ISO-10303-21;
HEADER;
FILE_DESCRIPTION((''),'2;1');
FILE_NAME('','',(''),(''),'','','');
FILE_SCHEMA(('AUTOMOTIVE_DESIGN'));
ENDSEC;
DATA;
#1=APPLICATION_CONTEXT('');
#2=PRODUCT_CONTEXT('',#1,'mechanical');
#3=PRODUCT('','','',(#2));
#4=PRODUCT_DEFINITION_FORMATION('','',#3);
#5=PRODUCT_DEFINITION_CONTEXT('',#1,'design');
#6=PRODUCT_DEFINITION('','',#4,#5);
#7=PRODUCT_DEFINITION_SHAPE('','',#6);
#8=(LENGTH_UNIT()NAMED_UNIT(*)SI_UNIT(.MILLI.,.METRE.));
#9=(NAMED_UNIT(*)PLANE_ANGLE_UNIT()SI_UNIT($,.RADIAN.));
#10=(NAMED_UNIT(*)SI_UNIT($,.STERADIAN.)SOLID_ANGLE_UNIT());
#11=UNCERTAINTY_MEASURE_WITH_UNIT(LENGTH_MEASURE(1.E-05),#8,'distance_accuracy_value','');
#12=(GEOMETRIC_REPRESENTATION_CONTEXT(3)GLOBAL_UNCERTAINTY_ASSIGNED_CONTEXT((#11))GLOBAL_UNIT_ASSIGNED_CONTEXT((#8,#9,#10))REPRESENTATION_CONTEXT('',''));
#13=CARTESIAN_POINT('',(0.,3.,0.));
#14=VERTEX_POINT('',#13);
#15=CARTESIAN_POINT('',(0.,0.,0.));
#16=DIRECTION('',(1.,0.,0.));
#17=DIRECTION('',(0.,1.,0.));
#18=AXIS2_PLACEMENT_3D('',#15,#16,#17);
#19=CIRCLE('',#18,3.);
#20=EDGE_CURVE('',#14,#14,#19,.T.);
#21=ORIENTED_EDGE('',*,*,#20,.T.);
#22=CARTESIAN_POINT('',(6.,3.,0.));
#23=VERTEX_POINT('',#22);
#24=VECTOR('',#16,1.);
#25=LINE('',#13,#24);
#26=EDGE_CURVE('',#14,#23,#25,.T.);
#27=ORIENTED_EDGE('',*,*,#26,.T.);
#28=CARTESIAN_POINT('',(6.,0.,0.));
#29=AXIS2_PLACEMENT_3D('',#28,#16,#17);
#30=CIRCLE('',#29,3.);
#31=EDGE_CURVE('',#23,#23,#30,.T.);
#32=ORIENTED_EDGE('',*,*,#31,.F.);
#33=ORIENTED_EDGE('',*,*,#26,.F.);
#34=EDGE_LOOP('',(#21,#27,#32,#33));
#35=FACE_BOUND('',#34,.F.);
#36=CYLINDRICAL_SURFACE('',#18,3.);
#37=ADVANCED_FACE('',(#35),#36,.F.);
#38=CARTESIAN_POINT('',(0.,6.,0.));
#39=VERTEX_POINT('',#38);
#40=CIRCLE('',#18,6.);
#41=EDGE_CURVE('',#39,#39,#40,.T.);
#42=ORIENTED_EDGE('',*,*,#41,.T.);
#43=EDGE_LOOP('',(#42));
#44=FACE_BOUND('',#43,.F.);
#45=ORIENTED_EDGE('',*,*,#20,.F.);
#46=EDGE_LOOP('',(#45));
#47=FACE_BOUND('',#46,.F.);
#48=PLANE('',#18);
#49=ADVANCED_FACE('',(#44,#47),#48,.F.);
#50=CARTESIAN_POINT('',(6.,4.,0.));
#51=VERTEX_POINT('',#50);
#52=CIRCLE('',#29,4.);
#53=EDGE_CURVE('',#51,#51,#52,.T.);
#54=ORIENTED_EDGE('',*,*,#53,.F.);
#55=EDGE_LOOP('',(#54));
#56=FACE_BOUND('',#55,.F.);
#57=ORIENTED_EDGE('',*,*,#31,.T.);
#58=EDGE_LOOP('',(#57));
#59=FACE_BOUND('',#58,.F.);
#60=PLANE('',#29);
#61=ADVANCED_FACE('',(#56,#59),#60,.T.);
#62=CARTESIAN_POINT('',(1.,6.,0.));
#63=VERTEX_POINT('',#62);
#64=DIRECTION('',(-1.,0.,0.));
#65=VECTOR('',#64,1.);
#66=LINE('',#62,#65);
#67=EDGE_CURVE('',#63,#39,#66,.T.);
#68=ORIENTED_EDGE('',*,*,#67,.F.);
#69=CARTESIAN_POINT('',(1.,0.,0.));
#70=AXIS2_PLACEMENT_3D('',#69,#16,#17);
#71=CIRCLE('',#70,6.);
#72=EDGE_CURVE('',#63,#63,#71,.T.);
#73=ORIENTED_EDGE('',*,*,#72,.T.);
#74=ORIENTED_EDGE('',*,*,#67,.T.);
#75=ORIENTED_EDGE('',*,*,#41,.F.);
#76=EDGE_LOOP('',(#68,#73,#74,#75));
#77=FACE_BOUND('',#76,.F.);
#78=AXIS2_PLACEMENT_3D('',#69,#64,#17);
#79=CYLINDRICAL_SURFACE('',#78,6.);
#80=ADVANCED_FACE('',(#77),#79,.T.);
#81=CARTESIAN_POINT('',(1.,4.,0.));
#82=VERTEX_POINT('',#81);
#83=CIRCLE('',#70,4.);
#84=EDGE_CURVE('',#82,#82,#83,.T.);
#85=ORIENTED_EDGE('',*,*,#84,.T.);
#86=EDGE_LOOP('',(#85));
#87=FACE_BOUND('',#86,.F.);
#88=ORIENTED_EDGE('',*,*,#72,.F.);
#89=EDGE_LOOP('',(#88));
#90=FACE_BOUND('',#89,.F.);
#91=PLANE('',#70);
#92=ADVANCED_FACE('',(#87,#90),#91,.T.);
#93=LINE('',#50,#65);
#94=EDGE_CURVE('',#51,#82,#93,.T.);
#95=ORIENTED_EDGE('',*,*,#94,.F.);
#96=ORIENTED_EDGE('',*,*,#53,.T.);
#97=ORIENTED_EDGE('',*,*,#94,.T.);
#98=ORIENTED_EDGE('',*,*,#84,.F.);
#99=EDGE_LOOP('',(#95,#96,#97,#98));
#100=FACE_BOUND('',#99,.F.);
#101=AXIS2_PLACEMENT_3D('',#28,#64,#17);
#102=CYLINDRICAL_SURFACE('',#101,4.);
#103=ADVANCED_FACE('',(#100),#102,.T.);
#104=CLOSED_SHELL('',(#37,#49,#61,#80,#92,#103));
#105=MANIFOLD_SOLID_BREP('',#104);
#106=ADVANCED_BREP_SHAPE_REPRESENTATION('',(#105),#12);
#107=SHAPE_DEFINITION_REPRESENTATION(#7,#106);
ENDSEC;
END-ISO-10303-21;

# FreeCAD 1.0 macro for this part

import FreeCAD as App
import Part
import Sketcher
from FreeCAD import Vector


def add_polygon(sketch, points):
    """Adds a closed chain of lines whose ends are joined by coincident constraints."""
    first, n = sketch.GeometryCount, len(points)
    for a, b in zip(points, points[1:] + points[:1]):
        sketch.addGeometry(Part.LineSegment(App.Vector(*a, 0), App.Vector(*b, 0)), False)
    for i in range(n):
        sketch.addConstraint(Sketcher.Constraint("Coincident", first + i, 2, first + (i + 1) % n, 1))

doc = App.newDocument("Part")
body = doc.addObject("PartDesign::Body", "Body")

sketch1 = body.newObject("Sketcher::SketchObject", "Sketch")
sketch1.AttachmentSupport = (doc.getObject("XY_Plane"), [""])
sketch1.MapMode = "FlatFace"
add_polygon(sketch1, [(0, 6), (0, 3), (6, 3), (6, 4), (1, 4), (1, 6)])
sketch1.addConstraint(Sketcher.Constraint("Vertical", 0))
sketch1.addConstraint(Sketcher.Constraint("Horizontal", 1))
sketch1.addConstraint(Sketcher.Constraint("Vertical", 2))
sketch1.addConstraint(Sketcher.Constraint("Horizontal", 3))
sketch1.addConstraint(Sketcher.Constraint("Vertical", 4))
sketch1.addConstraint(Sketcher.Constraint("Horizontal", 5))
sketch1.addConstraint(Sketcher.Constraint("PointOnObject", 0, 2, -2))
sketch1.addConstraint(Sketcher.Constraint("Equal", 5, 2))
sketch1.addConstraint(Sketcher.Constraint("DistanceX", 1, 1, 1, 2, 6.0))
sketch1.addConstraint(Sketcher.Constraint("DistanceX", 3, 2, 3, 1, 5.0))
sketch1.addConstraint(Sketcher.Constraint("DistanceY", 0, 2, 0, 1, 3.0))
sketch1.addConstraint(Sketcher.Constraint("DistanceY", -1, 1, 0, 2, 3.0))
revolution = body.newObject("PartDesign::Revolution", "Revolution")
revolution.Profile = sketch1
revolution.ReferenceAxis = (sketch1, ["H_Axis"])
revolution.Angle = 360

doc.recompute()
